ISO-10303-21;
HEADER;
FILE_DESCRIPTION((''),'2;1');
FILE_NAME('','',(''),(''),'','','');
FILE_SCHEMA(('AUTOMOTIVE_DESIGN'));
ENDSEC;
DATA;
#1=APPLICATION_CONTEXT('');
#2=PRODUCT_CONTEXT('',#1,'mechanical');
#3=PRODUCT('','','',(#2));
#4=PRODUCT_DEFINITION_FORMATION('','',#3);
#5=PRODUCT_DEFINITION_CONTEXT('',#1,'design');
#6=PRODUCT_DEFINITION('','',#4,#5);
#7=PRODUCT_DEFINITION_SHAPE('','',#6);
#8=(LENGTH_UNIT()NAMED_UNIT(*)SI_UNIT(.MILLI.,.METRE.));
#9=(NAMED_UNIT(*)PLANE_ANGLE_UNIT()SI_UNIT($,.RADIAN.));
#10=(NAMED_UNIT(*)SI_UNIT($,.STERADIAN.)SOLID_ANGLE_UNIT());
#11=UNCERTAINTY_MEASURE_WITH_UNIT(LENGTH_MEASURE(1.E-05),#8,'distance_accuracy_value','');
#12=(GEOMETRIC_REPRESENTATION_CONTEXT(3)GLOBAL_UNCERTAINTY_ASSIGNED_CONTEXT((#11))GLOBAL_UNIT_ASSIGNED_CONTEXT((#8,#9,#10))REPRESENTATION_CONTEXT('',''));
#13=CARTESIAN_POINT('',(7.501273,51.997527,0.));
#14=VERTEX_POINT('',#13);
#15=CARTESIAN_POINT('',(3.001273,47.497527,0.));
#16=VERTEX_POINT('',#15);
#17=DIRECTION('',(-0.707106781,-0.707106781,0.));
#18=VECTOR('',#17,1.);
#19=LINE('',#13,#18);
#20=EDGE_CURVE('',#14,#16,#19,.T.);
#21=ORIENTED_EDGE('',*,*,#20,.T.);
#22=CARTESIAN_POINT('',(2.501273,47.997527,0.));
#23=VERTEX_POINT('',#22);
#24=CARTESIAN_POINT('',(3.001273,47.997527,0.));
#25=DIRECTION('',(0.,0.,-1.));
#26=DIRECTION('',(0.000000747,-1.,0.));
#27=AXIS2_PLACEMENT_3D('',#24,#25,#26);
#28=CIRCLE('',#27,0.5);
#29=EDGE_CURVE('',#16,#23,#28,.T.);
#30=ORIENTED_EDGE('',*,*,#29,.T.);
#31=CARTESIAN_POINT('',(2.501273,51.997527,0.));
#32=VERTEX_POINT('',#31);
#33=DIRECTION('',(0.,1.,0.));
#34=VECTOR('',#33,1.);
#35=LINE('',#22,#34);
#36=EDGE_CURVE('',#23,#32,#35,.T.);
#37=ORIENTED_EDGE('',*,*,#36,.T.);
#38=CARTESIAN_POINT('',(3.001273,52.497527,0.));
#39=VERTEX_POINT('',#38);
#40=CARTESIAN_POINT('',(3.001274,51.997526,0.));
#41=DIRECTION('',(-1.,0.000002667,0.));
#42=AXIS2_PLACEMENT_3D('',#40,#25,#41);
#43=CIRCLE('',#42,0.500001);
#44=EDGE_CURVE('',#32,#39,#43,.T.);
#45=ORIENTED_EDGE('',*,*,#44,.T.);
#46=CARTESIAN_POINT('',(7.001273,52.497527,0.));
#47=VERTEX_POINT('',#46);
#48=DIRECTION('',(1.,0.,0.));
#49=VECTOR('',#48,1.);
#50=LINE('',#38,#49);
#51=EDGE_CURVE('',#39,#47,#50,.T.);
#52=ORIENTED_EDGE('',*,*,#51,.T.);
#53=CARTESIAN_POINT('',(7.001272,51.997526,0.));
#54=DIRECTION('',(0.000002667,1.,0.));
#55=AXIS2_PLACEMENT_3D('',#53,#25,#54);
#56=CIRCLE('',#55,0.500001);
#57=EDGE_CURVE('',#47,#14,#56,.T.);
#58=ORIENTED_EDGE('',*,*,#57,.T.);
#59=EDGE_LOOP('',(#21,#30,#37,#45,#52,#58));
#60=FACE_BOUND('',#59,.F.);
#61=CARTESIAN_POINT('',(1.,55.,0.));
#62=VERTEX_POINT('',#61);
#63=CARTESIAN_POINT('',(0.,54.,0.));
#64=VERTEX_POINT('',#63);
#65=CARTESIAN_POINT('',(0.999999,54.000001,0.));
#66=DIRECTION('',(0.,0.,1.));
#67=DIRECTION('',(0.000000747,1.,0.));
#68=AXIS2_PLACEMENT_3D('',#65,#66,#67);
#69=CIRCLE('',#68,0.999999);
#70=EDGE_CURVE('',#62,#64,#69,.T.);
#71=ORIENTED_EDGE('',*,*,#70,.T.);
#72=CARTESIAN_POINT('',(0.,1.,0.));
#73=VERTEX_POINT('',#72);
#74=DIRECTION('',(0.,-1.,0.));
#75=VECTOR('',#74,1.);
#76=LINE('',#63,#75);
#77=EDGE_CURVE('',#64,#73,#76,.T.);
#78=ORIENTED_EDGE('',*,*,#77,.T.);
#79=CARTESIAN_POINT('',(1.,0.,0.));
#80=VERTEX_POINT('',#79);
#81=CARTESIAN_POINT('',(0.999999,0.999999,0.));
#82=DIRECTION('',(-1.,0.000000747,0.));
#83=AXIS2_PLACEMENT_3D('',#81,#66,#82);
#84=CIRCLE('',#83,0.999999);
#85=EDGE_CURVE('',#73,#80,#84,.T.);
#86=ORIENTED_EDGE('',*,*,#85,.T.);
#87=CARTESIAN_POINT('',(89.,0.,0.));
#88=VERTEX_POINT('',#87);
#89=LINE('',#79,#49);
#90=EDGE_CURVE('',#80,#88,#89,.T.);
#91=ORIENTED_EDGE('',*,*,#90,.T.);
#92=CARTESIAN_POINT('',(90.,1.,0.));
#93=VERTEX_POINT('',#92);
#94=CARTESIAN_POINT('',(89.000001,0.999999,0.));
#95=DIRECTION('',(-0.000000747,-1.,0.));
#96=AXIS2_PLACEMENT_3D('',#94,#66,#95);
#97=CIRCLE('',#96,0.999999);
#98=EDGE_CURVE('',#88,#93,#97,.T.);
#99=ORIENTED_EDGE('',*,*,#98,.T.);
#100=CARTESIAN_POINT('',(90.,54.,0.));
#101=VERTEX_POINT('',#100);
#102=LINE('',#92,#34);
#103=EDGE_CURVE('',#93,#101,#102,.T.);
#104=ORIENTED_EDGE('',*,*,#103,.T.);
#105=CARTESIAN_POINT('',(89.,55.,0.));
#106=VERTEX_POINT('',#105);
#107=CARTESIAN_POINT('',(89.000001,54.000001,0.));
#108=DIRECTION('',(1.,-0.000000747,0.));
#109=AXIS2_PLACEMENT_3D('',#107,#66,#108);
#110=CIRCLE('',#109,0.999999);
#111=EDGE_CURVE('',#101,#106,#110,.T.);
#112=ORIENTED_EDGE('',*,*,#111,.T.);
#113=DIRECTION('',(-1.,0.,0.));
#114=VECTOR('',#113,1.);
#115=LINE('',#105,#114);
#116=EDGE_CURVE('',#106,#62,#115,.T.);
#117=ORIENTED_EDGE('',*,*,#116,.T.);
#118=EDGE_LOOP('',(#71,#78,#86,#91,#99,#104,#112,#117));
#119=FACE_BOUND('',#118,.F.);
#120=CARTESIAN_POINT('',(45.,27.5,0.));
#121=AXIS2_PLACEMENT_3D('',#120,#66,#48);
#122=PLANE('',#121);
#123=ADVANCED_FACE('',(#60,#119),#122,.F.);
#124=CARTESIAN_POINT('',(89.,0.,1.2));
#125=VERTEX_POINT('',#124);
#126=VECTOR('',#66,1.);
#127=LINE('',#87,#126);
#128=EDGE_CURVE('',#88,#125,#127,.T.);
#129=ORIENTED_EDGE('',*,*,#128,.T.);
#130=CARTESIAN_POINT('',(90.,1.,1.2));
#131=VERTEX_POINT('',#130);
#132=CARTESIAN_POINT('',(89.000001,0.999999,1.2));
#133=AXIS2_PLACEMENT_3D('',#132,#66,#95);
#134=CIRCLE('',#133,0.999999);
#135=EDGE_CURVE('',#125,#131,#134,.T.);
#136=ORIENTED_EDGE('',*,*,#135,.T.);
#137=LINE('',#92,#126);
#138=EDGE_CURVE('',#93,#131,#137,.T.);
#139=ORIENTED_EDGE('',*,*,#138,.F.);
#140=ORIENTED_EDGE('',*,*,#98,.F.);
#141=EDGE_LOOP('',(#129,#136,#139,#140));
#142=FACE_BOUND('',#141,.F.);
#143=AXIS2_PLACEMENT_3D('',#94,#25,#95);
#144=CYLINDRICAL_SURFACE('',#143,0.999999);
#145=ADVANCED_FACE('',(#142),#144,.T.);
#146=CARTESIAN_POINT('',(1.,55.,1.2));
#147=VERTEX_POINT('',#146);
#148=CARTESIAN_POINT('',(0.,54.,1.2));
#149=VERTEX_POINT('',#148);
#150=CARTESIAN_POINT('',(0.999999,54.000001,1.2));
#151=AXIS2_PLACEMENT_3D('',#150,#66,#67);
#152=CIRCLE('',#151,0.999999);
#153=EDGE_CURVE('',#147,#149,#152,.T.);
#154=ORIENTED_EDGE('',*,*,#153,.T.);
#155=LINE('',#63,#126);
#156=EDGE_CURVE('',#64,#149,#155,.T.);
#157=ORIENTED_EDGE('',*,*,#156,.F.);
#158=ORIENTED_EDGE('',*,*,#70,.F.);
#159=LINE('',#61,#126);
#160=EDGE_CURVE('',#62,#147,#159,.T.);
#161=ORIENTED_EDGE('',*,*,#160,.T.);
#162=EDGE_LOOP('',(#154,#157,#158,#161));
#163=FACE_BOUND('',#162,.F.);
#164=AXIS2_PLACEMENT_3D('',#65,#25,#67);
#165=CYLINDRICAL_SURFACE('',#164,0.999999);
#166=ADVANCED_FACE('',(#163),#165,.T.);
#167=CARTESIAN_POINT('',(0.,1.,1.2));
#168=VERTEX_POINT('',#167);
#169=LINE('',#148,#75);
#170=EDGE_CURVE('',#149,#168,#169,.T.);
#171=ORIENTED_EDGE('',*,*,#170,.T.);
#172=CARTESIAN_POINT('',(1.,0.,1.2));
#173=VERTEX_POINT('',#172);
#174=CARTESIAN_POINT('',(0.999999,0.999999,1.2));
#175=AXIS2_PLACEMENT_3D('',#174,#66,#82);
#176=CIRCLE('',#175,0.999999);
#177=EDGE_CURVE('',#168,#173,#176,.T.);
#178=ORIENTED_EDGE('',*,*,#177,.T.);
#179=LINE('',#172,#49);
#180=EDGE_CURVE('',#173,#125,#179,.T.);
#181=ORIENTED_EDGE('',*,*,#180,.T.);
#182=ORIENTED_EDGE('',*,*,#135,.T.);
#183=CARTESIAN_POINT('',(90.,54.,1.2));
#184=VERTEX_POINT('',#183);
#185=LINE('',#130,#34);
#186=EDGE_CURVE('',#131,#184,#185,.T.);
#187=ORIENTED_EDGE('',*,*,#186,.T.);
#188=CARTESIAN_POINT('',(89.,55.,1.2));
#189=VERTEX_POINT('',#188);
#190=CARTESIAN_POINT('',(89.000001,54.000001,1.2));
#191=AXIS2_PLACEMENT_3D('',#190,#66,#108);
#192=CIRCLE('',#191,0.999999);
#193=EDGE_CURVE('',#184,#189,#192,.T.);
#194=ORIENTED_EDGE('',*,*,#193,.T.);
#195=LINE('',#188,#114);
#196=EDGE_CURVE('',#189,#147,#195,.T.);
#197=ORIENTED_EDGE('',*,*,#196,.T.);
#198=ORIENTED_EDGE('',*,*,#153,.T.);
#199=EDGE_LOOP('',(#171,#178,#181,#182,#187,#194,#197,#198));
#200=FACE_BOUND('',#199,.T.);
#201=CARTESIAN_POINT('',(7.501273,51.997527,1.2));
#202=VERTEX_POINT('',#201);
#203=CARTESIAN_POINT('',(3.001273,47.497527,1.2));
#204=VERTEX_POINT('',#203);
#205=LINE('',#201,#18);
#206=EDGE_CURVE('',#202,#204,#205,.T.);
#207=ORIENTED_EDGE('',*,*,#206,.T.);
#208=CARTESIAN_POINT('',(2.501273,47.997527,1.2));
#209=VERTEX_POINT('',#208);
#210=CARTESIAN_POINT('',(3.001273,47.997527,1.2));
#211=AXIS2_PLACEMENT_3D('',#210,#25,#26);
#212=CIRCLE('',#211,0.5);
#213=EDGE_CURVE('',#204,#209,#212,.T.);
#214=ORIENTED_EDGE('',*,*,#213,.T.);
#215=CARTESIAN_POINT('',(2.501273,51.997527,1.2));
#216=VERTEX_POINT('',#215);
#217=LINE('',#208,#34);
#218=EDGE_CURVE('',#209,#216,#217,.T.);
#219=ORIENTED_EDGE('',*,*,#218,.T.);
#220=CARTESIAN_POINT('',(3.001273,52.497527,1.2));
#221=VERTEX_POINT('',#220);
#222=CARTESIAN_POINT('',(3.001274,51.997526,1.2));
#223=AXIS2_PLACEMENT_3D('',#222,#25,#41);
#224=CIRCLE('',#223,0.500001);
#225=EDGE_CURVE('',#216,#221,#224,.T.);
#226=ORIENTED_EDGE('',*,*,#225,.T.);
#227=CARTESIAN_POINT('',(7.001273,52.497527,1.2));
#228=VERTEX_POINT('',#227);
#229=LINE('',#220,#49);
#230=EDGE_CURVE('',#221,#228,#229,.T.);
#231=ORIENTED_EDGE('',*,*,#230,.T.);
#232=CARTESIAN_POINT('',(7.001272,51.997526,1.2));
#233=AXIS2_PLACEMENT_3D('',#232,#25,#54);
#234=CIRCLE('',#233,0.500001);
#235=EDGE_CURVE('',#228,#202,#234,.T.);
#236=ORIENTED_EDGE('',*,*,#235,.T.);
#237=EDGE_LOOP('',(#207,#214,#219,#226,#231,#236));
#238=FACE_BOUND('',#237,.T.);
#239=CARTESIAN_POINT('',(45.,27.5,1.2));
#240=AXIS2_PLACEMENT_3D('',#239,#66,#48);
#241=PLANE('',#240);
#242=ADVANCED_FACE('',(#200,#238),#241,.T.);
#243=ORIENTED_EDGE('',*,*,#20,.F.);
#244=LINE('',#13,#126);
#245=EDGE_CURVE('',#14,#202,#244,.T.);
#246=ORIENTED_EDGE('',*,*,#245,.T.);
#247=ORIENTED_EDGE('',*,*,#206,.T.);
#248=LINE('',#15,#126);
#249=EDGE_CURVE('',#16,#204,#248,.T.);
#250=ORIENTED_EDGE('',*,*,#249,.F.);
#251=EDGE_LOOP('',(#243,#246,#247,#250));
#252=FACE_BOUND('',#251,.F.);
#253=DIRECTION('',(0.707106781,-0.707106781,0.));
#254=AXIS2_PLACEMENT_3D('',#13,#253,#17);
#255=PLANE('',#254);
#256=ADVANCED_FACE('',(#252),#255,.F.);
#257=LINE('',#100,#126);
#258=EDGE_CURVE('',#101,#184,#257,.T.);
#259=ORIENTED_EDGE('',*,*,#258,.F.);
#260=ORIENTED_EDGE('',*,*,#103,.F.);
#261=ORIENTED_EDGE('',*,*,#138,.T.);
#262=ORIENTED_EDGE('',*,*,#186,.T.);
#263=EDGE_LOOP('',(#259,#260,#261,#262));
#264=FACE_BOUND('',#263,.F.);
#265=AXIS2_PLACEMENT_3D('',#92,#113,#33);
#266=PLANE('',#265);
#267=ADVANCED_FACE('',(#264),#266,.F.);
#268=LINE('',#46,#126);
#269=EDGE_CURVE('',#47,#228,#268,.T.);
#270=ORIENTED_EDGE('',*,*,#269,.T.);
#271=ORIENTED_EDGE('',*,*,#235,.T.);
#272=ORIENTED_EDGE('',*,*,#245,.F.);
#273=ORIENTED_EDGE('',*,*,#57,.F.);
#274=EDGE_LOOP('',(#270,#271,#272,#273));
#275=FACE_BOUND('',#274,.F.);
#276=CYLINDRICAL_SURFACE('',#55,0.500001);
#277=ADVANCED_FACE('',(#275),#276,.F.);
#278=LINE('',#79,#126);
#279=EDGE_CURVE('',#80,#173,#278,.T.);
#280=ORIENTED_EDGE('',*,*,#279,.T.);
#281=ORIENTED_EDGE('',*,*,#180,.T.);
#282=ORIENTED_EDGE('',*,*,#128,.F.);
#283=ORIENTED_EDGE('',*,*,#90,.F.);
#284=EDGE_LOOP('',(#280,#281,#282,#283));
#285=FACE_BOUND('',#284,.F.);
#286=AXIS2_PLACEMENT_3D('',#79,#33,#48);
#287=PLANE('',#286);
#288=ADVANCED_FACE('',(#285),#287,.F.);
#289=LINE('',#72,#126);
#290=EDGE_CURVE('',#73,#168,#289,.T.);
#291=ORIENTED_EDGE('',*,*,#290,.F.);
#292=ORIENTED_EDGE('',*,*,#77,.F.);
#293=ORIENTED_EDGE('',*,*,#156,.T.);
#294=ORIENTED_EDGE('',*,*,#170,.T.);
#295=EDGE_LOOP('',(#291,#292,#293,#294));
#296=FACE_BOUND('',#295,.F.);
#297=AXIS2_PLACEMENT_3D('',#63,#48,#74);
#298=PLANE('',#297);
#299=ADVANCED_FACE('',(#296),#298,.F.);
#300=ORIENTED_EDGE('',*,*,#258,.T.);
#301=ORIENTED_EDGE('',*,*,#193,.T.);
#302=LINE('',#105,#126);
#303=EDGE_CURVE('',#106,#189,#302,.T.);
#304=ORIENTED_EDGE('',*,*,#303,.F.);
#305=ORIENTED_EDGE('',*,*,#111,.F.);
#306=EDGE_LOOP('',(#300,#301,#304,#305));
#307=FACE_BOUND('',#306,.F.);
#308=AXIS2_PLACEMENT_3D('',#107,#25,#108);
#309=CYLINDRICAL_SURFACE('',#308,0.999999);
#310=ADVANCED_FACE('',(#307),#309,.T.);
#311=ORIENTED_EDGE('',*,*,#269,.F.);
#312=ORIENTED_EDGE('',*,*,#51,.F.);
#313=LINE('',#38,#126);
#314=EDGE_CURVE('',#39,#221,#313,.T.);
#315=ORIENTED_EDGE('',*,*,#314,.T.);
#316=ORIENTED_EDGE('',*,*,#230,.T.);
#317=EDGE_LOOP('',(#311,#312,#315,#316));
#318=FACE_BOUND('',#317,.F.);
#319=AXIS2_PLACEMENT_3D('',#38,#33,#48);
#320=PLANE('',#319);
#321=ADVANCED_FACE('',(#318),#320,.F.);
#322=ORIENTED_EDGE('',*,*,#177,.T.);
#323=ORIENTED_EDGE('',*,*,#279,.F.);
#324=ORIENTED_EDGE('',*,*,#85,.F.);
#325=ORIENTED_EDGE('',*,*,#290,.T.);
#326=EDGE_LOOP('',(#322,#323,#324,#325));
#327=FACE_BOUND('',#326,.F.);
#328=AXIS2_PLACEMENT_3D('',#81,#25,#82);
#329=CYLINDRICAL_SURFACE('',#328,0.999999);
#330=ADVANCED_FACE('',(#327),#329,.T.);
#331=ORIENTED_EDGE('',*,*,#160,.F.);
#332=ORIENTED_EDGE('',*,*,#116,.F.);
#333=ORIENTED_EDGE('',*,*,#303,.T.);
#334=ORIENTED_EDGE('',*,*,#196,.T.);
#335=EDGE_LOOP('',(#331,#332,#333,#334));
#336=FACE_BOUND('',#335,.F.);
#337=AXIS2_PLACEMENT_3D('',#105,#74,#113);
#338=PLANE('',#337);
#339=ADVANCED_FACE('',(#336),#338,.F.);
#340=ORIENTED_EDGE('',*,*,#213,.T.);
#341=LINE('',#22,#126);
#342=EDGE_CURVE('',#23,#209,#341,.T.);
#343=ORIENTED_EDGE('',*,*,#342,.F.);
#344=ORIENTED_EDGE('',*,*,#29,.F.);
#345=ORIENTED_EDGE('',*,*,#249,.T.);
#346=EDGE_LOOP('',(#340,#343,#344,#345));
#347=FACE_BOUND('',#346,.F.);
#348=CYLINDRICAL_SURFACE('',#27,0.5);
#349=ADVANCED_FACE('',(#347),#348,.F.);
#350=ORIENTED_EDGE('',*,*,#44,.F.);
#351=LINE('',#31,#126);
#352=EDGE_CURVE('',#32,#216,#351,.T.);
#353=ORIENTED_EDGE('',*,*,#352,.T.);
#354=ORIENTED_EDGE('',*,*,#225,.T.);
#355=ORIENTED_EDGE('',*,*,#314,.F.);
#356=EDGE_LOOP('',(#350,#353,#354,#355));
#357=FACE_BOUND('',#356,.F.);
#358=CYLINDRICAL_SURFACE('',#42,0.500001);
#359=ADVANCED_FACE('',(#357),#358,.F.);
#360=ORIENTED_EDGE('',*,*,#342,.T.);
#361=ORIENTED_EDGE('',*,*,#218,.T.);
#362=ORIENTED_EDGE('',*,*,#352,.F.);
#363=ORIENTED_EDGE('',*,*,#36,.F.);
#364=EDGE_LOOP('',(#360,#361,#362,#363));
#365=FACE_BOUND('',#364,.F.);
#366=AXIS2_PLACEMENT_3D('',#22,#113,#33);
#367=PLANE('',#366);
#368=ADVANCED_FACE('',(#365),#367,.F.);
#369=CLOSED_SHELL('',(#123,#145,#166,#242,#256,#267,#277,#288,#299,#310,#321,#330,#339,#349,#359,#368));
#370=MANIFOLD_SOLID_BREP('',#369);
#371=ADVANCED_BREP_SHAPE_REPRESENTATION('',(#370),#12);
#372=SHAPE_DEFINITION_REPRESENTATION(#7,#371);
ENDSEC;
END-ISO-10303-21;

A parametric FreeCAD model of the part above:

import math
import FreeCAD as App
import Part
import Sketcher
from FreeCAD import Vector
Q = App.Units.Quantity

doc = App.newDocument("Part")
body = doc.addObject("PartDesign::Body", "Body")

sketch1 = doc.addObject("Sketcher::SketchObject", "Sketch")
body.addObject(sketch1)
sketch1.AttachmentSupport = (doc.XY_Plane, [""])
sketch1.MapMode = "FlatFace"
sketch1.addGeometry(Part.ArcOfCircle(Part.Circle(Vector(1, 1, 0), Vector(0, 0, 1), 1), math.radians(180), math.radians(270)), False)
sketch1.addGeometry(Part.LineSegment(Vector(1, 0, 0), Vector(89, 0, 0)), False)
sketch1.addGeometry(Part.ArcOfCircle(Part.Circle(Vector(89, 1, 0), Vector(0, 0, 1), 1), math.radians(-90), math.radians(0)), False)
sketch1.addGeometry(Part.LineSegment(Vector(90, 1, 0), Vector(90, 54, 0)), False)
sketch1.addGeometry(Part.ArcOfCircle(Part.Circle(Vector(89, 54, 0), Vector(0, 0, 1), 1), math.radians(0), math.radians(90)), False)
sketch1.addGeometry(Part.LineSegment(Vector(89, 55, 0), Vector(1, 55, 0)), False)
sketch1.addGeometry(Part.ArcOfCircle(Part.Circle(Vector(1, 54, 0), Vector(0, 0, 1), 1), math.radians(90), math.radians(180)), False)
sketch1.addGeometry(Part.LineSegment(Vector(0, 54, 0), Vector(0, 1, 0)), False)
sketch1.addGeometry(Part.LineSegment(Vector(2.5, 48, 0), Vector(2.5, 52, 0)), False)
sketch1.addGeometry(Part.ArcOfCircle(Part.Circle(Vector(3, 52, 0), Vector(0, 0, 1), 0.5), math.radians(90), math.radians(180)), False)
sketch1.addGeometry(Part.LineSegment(Vector(3, 52.5, 0), Vector(7, 52.5, 0)), False)
sketch1.addGeometry(Part.ArcOfCircle(Part.Circle(Vector(7, 52, 0), Vector(0, 0, 1), 0.5), math.radians(0), math.radians(90)), False)
sketch1.addGeometry(Part.LineSegment(Vector(7.5, 52, 0), Vector(3, 47.5, 0)), False)
sketch1.addGeometry(Part.ArcOfCircle(Part.Circle(Vector(3, 48, 0), Vector(0, 0, 1), 0.5), math.radians(180), math.radians(270)), False)
sketch1.addConstraint(Sketcher.Constraint("Tangent", 0, 2, 1, 1))
sketch1.addConstraint(Sketcher.Constraint("Tangent", 1, 2, 2, 1))
sketch1.addConstraint(Sketcher.Constraint("Tangent", 2, 2, 3, 1))
sketch1.addConstraint(Sketcher.Constraint("Tangent", 3, 2, 4, 1))
sketch1.addConstraint(Sketcher.Constraint("Tangent", 4, 2, 5, 1))
sketch1.addConstraint(Sketcher.Constraint("Tangent", 5, 2, 6, 1))
sketch1.addConstraint(Sketcher.Constraint("Tangent", 6, 2, 7, 1))
sketch1.addConstraint(Sketcher.Constraint("Tangent", 7, 2, 0, 1))
sketch1.addConstraint(Sketcher.Constraint("Coincident", 8, 2, 9, 2))
sketch1.addConstraint(Sketcher.Constraint("Coincident", 9, 1, 10, 1))
sketch1.addConstraint(Sketcher.Constraint("Coincident", 10, 2, 11, 2))
sketch1.addConstraint(Sketcher.Constraint("Coincident", 11, 1, 12, 1))
sketch1.addConstraint(Sketcher.Constraint("Coincident", 12, 2, 13, 2))
sketch1.addConstraint(Sketcher.Constraint("Tangent", 13, 1, 8, 1))
sketch1.addConstraint(Sketcher.Constraint("Horizontal", 1))
sketch1.addConstraint(Sketcher.Constraint("Vertical", 3))
sketch1.addConstraint(Sketcher.Constraint("Horizontal", 5))
sketch1.addConstraint(Sketcher.Constraint("Vertical", 7))
sketch1.addConstraint(Sketcher.Constraint("Vertical", 8))
sketch1.addConstraint(Sketcher.Constraint("Horizontal", 10))
sketch1.addConstraint(Sketcher.Constraint("Equal", 0, 2))
sketch1.addConstraint(Sketcher.Constraint("Equal", 2, 4))
sketch1.addConstraint(Sketcher.Constraint("Equal", 4, 6))
sketch1.addConstraint(Sketcher.Constraint("Equal", 9, 11))
sketch1.addConstraint(Sketcher.Constraint("Equal", 11, 13))
sketch1.addConstraint(Sketcher.Constraint("PointOnObject", 0, 2, -1))
sketch1.addConstraint(Sketcher.Constraint("PointOnObject", 6, 2, -2))
sketch1.addConstraint(Sketcher.Constraint("Horizontal", 11, 3, 8, 2))
sketch1.addConstraint(Sketcher.Constraint("Horizontal", 8, 2, 11, 1))
sketch1.addConstraint(Sketcher.Constraint("Vertical", 13, 3, 9, 1))
sketch1.addConstraint(Sketcher.Constraint("Vertical", 11, 3, 10, 2))
sketch1.addConstraint(Sketcher.Constraint("Vertical", 9, 1, 12, 2))
sketch1.addConstraint(Sketcher.Constraint("Equal", 10, 8))
sketch1.addConstraint(Sketcher.Constraint("Radius", 0, Q("0.999999 mm")))
sketch1.addConstraint(Sketcher.Constraint("Radius", 9, Q("0.500001 mm")))
sketch1.addConstraint(Sketcher.Constraint("DistanceX", 1, 1, 1, 2, Q("88 mm")))
sketch1.addConstraint(Sketcher.Constraint("DistanceX", 10, 1, 10, 2, Q("4 mm")))
sketch1.addConstraint(Sketcher.Constraint("DistanceY", 3, 1, 3, 2, Q("53 mm")))
sketch1.addConstraint(Sketcher.Constraint("DistanceX", -1, 1, 11, 3, Q("7.001272 mm")))
sketch1.addConstraint(Sketcher.Constraint("DistanceY", -1, 1, 9, 3, Q("51.997526 mm")))
pad1 = doc.addObject("PartDesign::Pad", "Pad")
body.addObject(pad1)
pad1.Profile = sketch1
pad1.Length = 1.2

doc.recompute()
